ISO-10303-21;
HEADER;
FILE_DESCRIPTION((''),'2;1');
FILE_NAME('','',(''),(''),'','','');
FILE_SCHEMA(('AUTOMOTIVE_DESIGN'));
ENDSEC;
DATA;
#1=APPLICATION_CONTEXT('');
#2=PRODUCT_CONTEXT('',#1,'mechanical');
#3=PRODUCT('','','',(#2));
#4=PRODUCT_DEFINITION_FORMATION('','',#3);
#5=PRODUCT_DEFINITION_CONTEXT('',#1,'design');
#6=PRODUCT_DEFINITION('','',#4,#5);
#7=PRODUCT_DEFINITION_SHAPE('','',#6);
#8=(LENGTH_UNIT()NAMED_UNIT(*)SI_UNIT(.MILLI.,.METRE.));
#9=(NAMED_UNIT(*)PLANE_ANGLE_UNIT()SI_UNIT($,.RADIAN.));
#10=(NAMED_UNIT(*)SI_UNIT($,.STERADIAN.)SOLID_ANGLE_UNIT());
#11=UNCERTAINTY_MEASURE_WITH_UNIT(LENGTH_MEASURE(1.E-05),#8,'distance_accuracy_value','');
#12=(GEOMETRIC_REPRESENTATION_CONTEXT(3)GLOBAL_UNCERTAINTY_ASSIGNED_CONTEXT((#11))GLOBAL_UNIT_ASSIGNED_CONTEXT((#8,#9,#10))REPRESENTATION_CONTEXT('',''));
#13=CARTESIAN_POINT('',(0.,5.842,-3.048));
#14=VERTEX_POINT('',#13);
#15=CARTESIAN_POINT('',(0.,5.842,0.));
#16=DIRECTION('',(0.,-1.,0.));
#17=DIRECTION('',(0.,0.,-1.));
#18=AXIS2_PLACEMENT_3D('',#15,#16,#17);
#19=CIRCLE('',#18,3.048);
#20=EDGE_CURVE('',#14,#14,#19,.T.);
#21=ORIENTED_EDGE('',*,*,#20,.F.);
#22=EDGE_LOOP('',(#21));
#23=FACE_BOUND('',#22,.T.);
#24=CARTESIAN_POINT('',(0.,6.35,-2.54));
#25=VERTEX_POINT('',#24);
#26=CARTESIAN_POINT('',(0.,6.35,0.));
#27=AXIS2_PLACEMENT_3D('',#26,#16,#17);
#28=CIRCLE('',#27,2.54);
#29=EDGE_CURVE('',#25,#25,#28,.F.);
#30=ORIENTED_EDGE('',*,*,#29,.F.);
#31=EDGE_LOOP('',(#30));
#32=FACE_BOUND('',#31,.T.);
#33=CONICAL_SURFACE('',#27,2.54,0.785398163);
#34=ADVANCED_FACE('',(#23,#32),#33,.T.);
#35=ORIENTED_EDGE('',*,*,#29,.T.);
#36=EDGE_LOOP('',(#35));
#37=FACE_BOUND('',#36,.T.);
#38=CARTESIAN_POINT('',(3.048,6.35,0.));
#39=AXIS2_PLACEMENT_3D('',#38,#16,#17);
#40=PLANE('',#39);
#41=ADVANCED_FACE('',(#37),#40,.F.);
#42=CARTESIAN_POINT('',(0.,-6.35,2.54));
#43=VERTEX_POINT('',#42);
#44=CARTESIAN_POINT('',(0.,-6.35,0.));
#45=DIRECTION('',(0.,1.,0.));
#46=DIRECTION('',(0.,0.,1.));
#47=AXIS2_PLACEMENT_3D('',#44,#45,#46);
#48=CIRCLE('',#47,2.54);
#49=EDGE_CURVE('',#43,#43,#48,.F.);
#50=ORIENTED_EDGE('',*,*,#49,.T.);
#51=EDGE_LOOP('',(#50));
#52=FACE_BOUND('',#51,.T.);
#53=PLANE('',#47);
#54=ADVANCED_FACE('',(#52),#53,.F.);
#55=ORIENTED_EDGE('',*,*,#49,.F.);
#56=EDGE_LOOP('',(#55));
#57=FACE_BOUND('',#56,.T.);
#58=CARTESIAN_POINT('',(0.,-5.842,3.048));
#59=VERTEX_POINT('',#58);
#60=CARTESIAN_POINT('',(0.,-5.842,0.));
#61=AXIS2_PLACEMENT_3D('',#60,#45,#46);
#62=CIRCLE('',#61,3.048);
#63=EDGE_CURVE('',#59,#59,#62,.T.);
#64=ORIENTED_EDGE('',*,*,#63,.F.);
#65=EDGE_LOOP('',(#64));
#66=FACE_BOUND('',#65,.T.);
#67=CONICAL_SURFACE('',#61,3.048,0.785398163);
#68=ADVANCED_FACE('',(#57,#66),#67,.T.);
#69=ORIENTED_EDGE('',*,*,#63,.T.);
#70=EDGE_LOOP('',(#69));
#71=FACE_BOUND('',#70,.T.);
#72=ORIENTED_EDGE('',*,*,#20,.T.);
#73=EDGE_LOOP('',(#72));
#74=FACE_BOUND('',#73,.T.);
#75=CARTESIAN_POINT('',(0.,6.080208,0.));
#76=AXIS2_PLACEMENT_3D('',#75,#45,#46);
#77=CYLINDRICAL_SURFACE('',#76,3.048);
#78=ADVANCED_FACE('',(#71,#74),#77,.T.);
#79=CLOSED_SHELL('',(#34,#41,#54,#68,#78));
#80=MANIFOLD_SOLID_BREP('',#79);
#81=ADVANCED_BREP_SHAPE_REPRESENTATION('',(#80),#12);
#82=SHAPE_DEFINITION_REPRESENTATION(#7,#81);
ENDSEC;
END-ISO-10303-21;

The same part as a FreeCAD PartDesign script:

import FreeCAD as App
import Part
import Sketcher
Q = App.Units.Quantity


def edges_at(feature, points):
    """Names of the edges that pass closest to the given points."""
    edges = feature.Shape.Edges
    near = lambda p: min(range(len(edges)), key=lambda i: edges[i].distToShape(Part.Vertex(*p))[0])
    return sorted({f"Edge{near(p) + 1}" for p in points})


def add_polygon(sketch, points):
    """Adds a closed chain of lines whose ends are joined by coincident constraints."""
    first, n = sketch.GeometryCount, len(points)
    for a, b in zip(points, points[1:] + points[:1]):
        sketch.addGeometry(Part.LineSegment(App.Vector(*a, 0), App.Vector(*b, 0)), False)
    for i in range(n):
        sketch.addConstraint(Sketcher.Constraint("Coincident", first + i, 2, first + (i + 1) % n, 1))

doc = App.newDocument("Part")
params = doc.addObject("Spreadsheet::Sheet", "Params")
for row, (alias, value) in enumerate([
    ("sketch1_height", "0.5 in"),
    ("sketch1_width", "0.12 in"),
    ("revolution_angle", "360 deg"),
    ("chamfer_size", "0.02 in"),
], start=1):
    params.set(f"A{row}", alias)
    params.set(f"B{row}", "=" + value)
    params.setAlias(f"B{row}", alias)

body = doc.addObject("PartDesign::Body", "Body")

# Sketch on XY plane
sketch1 = body.newObject("Sketcher::SketchObject", "Sketch")
sketch1.AttachmentSupport = (doc.getObject("XY_Plane"), [""])
sketch1.MapMode = "FlatFace"
add_polygon(sketch1, [(0, 6.3), (0, -6.3), (3, -6.3), (3, 6.3)])  # lines 0-3
sketch1.addConstraint([
    Sketcher.Constraint("Vertical", 0),
    Sketcher.Constraint("Horizontal", 1),
    Sketcher.Constraint("Vertical", 2),
    Sketcher.Constraint("Horizontal", 3),
    Sketcher.Constraint("Symmetric", 0, 2, 3, 2, -1, 1),
    Sketcher.Constraint("DistanceY", 0, 2, 0, 1, Q("0.5 in")),
    Sketcher.Constraint("DistanceX", 1, 1, 1, 2, Q("0.12 in")),
])
sketch1.setExpression("Constraints[9]", "Params.sketch1_height")
sketch1.setExpression("Constraints[10]", "Params.sketch1_width")
revolution = body.newObject("PartDesign::Revolution", "Revolution")
revolution.Profile = sketch1
revolution.ReferenceAxis = (sketch1, ["V_Axis"])
revolution.setExpression("Angle", "Params.revolution_angle")
doc.recompute()

chamfer = body.newObject("PartDesign::Chamfer", "Chamfer")
chamfer.Base = (revolution, edges_at(revolution, [(-3.048, 6.35, 0), (-3.048, -6.35, 0)]))
chamfer.setExpression("Size", "Params.chamfer_size")

doc.recompute()
